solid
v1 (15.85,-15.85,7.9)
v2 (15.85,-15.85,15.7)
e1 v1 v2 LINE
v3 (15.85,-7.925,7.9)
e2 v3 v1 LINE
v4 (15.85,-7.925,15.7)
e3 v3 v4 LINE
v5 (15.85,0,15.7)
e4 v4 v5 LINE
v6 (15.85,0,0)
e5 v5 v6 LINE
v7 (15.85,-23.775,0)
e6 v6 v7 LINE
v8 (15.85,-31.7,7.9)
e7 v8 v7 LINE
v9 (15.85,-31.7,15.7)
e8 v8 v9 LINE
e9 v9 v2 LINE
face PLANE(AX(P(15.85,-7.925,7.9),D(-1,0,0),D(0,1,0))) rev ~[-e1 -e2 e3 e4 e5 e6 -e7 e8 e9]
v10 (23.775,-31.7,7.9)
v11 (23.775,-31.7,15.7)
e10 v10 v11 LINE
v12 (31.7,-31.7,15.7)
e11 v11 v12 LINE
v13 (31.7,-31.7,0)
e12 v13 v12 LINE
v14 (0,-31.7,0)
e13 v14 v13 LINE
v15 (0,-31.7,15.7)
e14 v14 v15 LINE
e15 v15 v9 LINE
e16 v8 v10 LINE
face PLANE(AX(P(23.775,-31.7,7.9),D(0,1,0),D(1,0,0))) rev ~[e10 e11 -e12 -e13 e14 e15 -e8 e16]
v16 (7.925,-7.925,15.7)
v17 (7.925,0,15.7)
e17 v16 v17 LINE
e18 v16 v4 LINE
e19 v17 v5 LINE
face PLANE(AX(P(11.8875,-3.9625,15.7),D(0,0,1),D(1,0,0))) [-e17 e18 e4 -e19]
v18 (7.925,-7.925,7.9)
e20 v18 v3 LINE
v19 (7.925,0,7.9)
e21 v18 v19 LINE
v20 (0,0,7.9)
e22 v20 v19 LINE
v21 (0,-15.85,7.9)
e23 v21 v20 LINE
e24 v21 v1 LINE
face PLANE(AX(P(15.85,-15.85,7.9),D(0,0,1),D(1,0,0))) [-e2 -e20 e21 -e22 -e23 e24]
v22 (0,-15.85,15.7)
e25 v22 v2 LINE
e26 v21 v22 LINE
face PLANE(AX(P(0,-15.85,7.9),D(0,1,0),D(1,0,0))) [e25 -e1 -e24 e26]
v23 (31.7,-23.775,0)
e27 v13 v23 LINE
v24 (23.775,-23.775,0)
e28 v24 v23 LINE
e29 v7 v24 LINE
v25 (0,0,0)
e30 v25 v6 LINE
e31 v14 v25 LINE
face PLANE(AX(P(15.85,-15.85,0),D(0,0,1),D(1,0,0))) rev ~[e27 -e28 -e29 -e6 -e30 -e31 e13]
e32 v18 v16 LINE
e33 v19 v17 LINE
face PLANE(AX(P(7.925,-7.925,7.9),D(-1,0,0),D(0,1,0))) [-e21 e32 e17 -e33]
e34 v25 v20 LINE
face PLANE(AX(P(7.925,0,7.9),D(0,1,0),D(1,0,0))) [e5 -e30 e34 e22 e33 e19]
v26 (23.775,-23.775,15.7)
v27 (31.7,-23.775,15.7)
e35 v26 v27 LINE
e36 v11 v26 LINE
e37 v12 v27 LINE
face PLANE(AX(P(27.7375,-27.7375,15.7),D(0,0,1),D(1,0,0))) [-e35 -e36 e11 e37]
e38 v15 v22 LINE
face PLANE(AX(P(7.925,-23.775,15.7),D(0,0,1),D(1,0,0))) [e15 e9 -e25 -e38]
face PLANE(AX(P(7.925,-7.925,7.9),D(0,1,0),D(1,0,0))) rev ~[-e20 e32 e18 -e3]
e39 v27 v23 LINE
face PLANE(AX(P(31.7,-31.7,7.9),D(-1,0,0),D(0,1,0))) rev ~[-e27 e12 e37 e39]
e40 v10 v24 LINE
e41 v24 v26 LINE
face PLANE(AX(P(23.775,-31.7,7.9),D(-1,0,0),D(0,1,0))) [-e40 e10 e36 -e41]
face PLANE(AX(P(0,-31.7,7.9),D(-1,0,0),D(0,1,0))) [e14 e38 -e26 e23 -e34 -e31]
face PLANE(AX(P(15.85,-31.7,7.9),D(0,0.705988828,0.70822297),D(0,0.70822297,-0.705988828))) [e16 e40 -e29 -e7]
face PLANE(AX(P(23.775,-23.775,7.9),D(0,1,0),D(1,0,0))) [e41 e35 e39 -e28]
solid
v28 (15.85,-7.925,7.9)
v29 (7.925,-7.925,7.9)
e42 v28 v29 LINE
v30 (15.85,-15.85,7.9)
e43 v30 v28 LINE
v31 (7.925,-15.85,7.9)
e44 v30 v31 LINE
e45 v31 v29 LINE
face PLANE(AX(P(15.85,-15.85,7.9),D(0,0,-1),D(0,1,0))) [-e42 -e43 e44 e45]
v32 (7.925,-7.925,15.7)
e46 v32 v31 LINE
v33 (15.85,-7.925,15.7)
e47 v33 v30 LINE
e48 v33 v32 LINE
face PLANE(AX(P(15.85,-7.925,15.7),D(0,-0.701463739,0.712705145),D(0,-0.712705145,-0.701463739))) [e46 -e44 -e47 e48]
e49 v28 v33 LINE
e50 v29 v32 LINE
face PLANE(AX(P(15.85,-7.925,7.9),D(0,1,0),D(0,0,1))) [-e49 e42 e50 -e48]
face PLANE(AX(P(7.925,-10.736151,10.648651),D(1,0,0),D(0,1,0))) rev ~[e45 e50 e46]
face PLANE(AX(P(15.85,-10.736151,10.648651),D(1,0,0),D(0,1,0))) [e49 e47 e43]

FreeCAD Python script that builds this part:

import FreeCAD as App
import Part
import Sketcher
Q = App.Units.Quantity

doc = App.newDocument("Part")
params = doc.addObject("Spreadsheet::Sheet", "Params")
for row, (alias, value) in enumerate([
    ("sketch1_width", "31.7 mm"),
    ("pad1_length", "7.9 mm"),
    ("sketch2_width", "15.85 mm"),
    ("pad2_length", "7.8 mm"),
    ("sketch3_width", "15.85 mm"),
    ("pocket1_length", "25 mm"),
    ("pad3_length", "7.8 mm"),
    ("pad4_length", "7.8 mm"),
    ("sketch6_height", "7.9 mm"),
    ("pocket2_length", "7.925 mm"),
    ("sketch7_height", "7.8 mm"),
    ("pad5_length", "7.925 mm"),
], start=1):
    params.set(f"A{row}", alias)
    params.set(f"B{row}", "=" + value)
    params.setAlias(f"B{row}", alias)

body = doc.addObject("PartDesign::Body", "Body")

sketch1 = body.newObject("Sketcher::SketchObject", "Sketch")
sketch1.AttachmentSupport = (doc.getObject("XY_Plane"), [""])
sketch1.MapMode = "FlatFace"
sketch1.addGeometry(Part.LineSegment(App.Vector(0, 0, 0), App.Vector(0, -32, 0)), False)
sketch1.addGeometry(Part.LineSegment(App.Vector(0, -32, 0), App.Vector(32, -32, 0)), False)
sketch1.addGeometry(Part.LineSegment(App.Vector(32, -32, 0), App.Vector(32, 0, 0)), False)
sketch1.addGeometry(Part.LineSegment(App.Vector(32, 0, 0), App.Vector(0, 0, 0)), False)
sketch1.addConstraint(Sketcher.Constraint("Coincident", 0, 2, 1, 1))
sketch1.addConstraint(Sketcher.Constraint("Coincident", 1, 2, 2, 1))
sketch1.addConstraint(Sketcher.Constraint("Coincident", 2, 2, 3, 1))
sketch1.addConstraint(Sketcher.Constraint("Coincident", 3, 2, 0, 1))
sketch1.addConstraint(Sketcher.Constraint("Vertical", 0))
sketch1.addConstraint(Sketcher.Constraint("Horizontal", 1))
sketch1.addConstraint(Sketcher.Constraint("Vertical", 2))
sketch1.addConstraint(Sketcher.Constraint("Horizontal", 3))
sketch1.addConstraint(Sketcher.Constraint("Coincident", 3, 2, -1, 1))
sketch1.addConstraint(Sketcher.Constraint("Equal", 3, 0))
sketch1.addConstraint(Sketcher.Constraint("DistanceX", 1, 1, 1, 2, Q("31.7 mm")))
sketch1.setExpression("Constraints[10]", "Params.sketch1_width")
pad1 = body.newObject("PartDesign::Pad", "Pad")
pad1.Profile = sketch1
pad1.setExpression("Length", "Params.pad1_length")

sketch2 = body.newObject("Sketcher::SketchObject", "Sketch001")
sketch2.AttachmentSupport = (doc.getObject("XY_Plane"), [""])
sketch2.MapMode = "FlatFace"
sketch2.AttachmentOffset = App.Placement(App.Vector(0, 0, 7.9), App.Rotation())
sketch2.addGeometry(Part.LineSegment(App.Vector(0, -16, 0), App.Vector(0, -32, 0)), False)
sketch2.addGeometry(Part.LineSegment(App.Vector(0, -32, 0), App.Vector(16, -32, 0)), False)
sketch2.addGeometry(Part.LineSegment(App.Vector(16, -32, 0), App.Vector(16, -16, 0)), False)
sketch2.addGeometry(Part.LineSegment(App.Vector(16, -16, 0), App.Vector(0, -16, 0)), False)
sketch2.addConstraint(Sketcher.Constraint("Coincident", 0, 2, 1, 1))
sketch2.addConstraint(Sketcher.Constraint("Coincident", 1, 2, 2, 1))
sketch2.addConstraint(Sketcher.Constraint("Coincident", 2, 2, 3, 1))
sketch2.addConstraint(Sketcher.Constraint("Coincident", 3, 2, 0, 1))
sketch2.addConstraint(Sketcher.Constraint("Vertical", 0))
sketch2.addConstraint(Sketcher.Constraint("Horizontal", 1))
sketch2.addConstraint(Sketcher.Constraint("Vertical", 2))
sketch2.addConstraint(Sketcher.Constraint("Horizontal", 3))
sketch2.addConstraint(Sketcher.Constraint("PointOnObject", 0, 2, -2))
sketch2.addConstraint(Sketcher.Constraint("Equal", 3, 0))
sketch2.addConstraint(Sketcher.Constraint("DistanceX", 1, 1, 1, 2, Q("15.85 mm")))
sketch2.addConstraint(Sketcher.Constraint("DistanceY", 0, 2, -1, 1, Q("31.7 mm")))
sketch2.setExpression("Constraints[10]", "Params.sketch2_width")
pad2 = body.newObject("PartDesign::Pad", "Pad001")
pad2.Profile = sketch2
pad2.setExpression("Length", "Params.pad2_length")

sketch3 = body.newObject("Sketcher::SketchObject", "Sketch002")
sketch3.AttachmentSupport = (doc.getObject("XY_Plane"), [""])
sketch3.MapMode = "FlatFace"
sketch3.AttachmentOffset = App.Placement(App.Vector(0, 0, 7.9), App.Rotation())
sketch3.addGeometry(Part.LineSegment(App.Vector(16, 0, 0), App.Vector(16, -24, 0)), False)
sketch3.addGeometry(Part.LineSegment(App.Vector(16, -24, 0), App.Vector(32, -24, 0)), False)
sketch3.addGeometry(Part.LineSegment(App.Vector(32, -24, 0), App.Vector(32, 0, 0)), False)
sketch3.addGeometry(Part.LineSegment(App.Vector(32, 0, 0), App.Vector(16, 0, 0)), False)
sketch3.addConstraint(Sketcher.Constraint("Coincident", 0, 2, 1, 1))
sketch3.addConstraint(Sketcher.Constraint("Coincident", 1, 2, 2, 1))
sketch3.addConstraint(Sketcher.Constraint("Coincident", 2, 2, 3, 1))
sketch3.addConstraint(Sketcher.Constraint("Coincident", 3, 2, 0, 1))
sketch3.addConstraint(Sketcher.Constraint("Vertical", 0))
sketch3.addConstraint(Sketcher.Constraint("Horizontal", 1))
sketch3.addConstraint(Sketcher.Constraint("Vertical", 2))
sketch3.addConstraint(Sketcher.Constraint("Horizontal", 3))
sketch3.addConstraint(Sketcher.Constraint("PointOnObject", 2, 2, -1))
sketch3.addConstraint(Sketcher.Constraint("DistanceX", 1, 1, 1, 2, Q("15.85 mm")))
sketch3.addConstraint(Sketcher.Constraint("DistanceX", -1, 1, 1, 2, Q("31.7 mm")))
sketch3.addConstraint(Sketcher.Constraint("DistanceY", 0, 2, 0, 1, Q("23.775 mm")))
sketch3.setExpression("Constraints[9]", "Params.sketch3_width")
pocket1 = body.newObject("PartDesign::Pocket", "Pocket")
pocket1.Profile = sketch3
pocket1.setExpression("Length", "Params.pocket1_length")

sketch4 = body.newObject("Sketcher::SketchObject", "Sketch003")
sketch4.AttachmentSupport = (doc.getObject("XY_Plane"), [""])
sketch4.MapMode = "FlatFace"
sketch4.AttachmentOffset = App.Placement(App.Vector(0, 0, 7.9), App.Rotation())
sketch4.addGeometry(Part.LineSegment(App.Vector(24, -24, 0), App.Vector(24, -32, 0)), False)
sketch4.addGeometry(Part.LineSegment(App.Vector(24, -32, 0), App.Vector(32, -32, 0)), False)
sketch4.addGeometry(Part.LineSegment(App.Vector(32, -32, 0), App.Vector(32, -24, 0)), False)
sketch4.addGeometry(Part.LineSegment(App.Vector(32, -24, 0), App.Vector(24, -24, 0)), False)
sketch4.addConstraint(Sketcher.Constraint("Coincident", 0, 2, 1, 1))
sketch4.addConstraint(Sketcher.Constraint("Coincident", 1, 2, 2, 1))
sketch4.addConstraint(Sketcher.Constraint("Coincident", 2, 2, 3, 1))
sketch4.addConstraint(Sketcher.Constraint("Coincident", 3, 2, 0, 1))
sketch4.addConstraint(Sketcher.Constraint("Vertical", 0))
sketch4.addConstraint(Sketcher.Constraint("Horizontal", 1))
sketch4.addConstraint(Sketcher.Constraint("Vertical", 2))
sketch4.addConstraint(Sketcher.Constraint("Horizontal", 3))
sketch4.addConstraint(Sketcher.Constraint("Equal", 3, 0))
sketch4.addConstraint(Sketcher.Constraint("DistanceY", 0, 2, -1, 1, Q("31.7 mm")))
sketch4.addConstraint(Sketcher.Constraint("DistanceX", -1, 1, 1, 2, Q("31.7 mm")))
sketch4.addConstraint(Sketcher.Constraint("DistanceX", 1, 1, 1, 2, Q("7.925 mm")))
pad3 = body.newObject("PartDesign::Pad", "Pad002")
pad3.Profile = sketch4
pad3.setExpression("Length", "Params.pad3_length")

sketch5 = body.newObject("Sketcher::SketchObject", "Sketch004")
sketch5.AttachmentSupport = (doc.getObject("XY_Plane"), [""])
sketch5.MapMode = "FlatFace"
sketch5.AttachmentOffset = App.Placement(App.Vector(0, 0, 7.9), App.Rotation())
sketch5.addGeometry(Part.LineSegment(App.Vector(8, 0, 0), App.Vector(8, -8, 0)), False)
sketch5.addGeometry(Part.LineSegment(App.Vector(8, -8, 0), App.Vector(16, -8, 0)), False)
sketch5.addGeometry(Part.LineSegment(App.Vector(16, -8, 0), App.Vector(16, 0, 0)), False)
sketch5.addGeometry(Part.LineSegment(App.Vector(16, 0, 0), App.Vector(8, 0, 0)), False)
sketch5.addConstraint(Sketcher.Constraint("Coincident", 0, 2, 1, 1))
sketch5.addConstraint(Sketcher.Constraint("Coincident", 1, 2, 2, 1))
sketch5.addConstraint(Sketcher.Constraint("Coincident", 2, 2, 3, 1))
sketch5.addConstraint(Sketcher.Constraint("Coincident", 3, 2, 0, 1))
sketch5.addConstraint(Sketcher.Constraint("Vertical", 0))
sketch5.addConstraint(Sketcher.Constraint("Horizontal", 1))
sketch5.addConstraint(Sketcher.Constraint("Vertical", 2))
sketch5.addConstraint(Sketcher.Constraint("Horizontal", 3))
sketch5.addConstraint(Sketcher.Constraint("PointOnObject", 2, 2, -1))
sketch5.addConstraint(Sketcher.Constraint("Equal", 3, 0))
sketch5.addConstraint(Sketcher.Constraint("DistanceX", 1, 1, 1, 2, Q("7.925 mm")))
sketch5.addConstraint(Sketcher.Constraint("DistanceX", -1, 1, 1, 2, Q("15.85 mm")))
pad4 = body.newObject("PartDesign::Pad", "Pad003")
pad4.Profile = sketch5
pad4.setExpression("Length", "Params.pad4_length")

sketch6 = body.newObject("Sketcher::SketchObject", "Sketch005")
sketch6.AttachmentSupport = (doc.getObject("YZ_Plane"), [""])
sketch6.MapMode = "FlatFace"
sketch6.AttachmentOffset = App.Placement(App.Vector(0, 0, 15.85), App.Rotation())
sketch6.addGeometry(Part.LineSegment(App.Vector(-24, 8, 0), App.Vector(-32, 8, 0)), False)
sketch6.addGeometry(Part.LineSegment(App.Vector(-32, 8, 0), App.Vector(-24, 0, 0)), False)
sketch6.addGeometry(Part.LineSegment(App.Vector(-24, 0, 0), App.Vector(-24, 8, 0)), False)
sketch6.addConstraint(Sketcher.Constraint("Coincident", 0, 2, 1, 1))
sketch6.addConstraint(Sketcher.Constraint("Coincident", 1, 2, 2, 1))
sketch6.addConstraint(Sketcher.Constraint("Coincident", 2, 2, 0, 1))
sketch6.addConstraint(Sketcher.Constraint("Horizontal", 0))
sketch6.addConstraint(Sketcher.Constraint("Vertical", 2))
sketch6.addConstraint(Sketcher.Constraint("PointOnObject", 1, 2, -1))
sketch6.addConstraint(Sketcher.Constraint("DistanceY", 2, 1, 2, 2, Q("7.9 mm")))
sketch6.addConstraint(Sketcher.Constraint("DistanceX", 0, 2, -1, 1, Q("31.7 mm")))
sketch6.addConstraint(Sketcher.Constraint("DistanceX", 0, 2, 0, 1, Q("7.925 mm")))
sketch6.setExpression("Constraints[6]", "Params.sketch6_height")
pocket2 = body.newObject("PartDesign::Pocket", "Pocket001")
pocket2.Profile = sketch6
pocket2.setExpression("Length", "Params.pocket2_length")
pocket2.Reversed = True
body2 = doc.addObject("PartDesign::Body", "Body001")

sketch7 = body2.newObject("Sketcher::SketchObject", "Sketch006")
sketch7.AttachmentSupport = (doc.getObject("YZ_Plane001"), [""])
sketch7.MapMode = "FlatFace"
sketch7.AttachmentOffset = App.Placement(App.Vector(0, 0, 15.85), App.Rotation())
sketch7.addGeometry(Part.LineSegment(App.Vector(-8, 8, 0), App.Vector(-8, 16, 0)), False)
sketch7.addGeometry(Part.LineSegment(App.Vector(-8, 16, 0), App.Vector(-16, 8, 0)), False)
sketch7.addGeometry(Part.LineSegment(App.Vector(-16, 8, 0), App.Vector(-8, 8, 0)), False)
sketch7.addConstraint(Sketcher.Constraint("Coincident", 0, 2, 1, 1))
sketch7.addConstraint(Sketcher.Constraint("Coincident", 1, 2, 2, 1))
sketch7.addConstraint(Sketcher.Constraint("Coincident", 2, 2, 0, 1))
sketch7.addConstraint(Sketcher.Constraint("Vertical", 0))
sketch7.addConstraint(Sketcher.Constraint("Horizontal", 2))
sketch7.addConstraint(Sketcher.Constraint("DistanceY", 0, 1, 0, 2, Q("7.8 mm")))
sketch7.addConstraint(Sketcher.Constraint("DistanceY", -1, 1, 0, 2, Q("15.7 mm")))
sketch7.addConstraint(Sketcher.Constraint("DistanceX", 2, 1, 2, 2, Q("7.925 mm")))
sketch7.addConstraint(Sketcher.Constraint("DistanceX", 1, 2, -1, 1, Q("15.85 mm")))
sketch7.setExpression("Constraints[5]", "Params.sketch7_height")
pad5 = body2.newObject("PartDesign::Pad", "Pad004")
pad5.Profile = sketch7
pad5.setExpression("Length", "Params.pad5_length")
pad5.Reversed = True

doc.recompute()
